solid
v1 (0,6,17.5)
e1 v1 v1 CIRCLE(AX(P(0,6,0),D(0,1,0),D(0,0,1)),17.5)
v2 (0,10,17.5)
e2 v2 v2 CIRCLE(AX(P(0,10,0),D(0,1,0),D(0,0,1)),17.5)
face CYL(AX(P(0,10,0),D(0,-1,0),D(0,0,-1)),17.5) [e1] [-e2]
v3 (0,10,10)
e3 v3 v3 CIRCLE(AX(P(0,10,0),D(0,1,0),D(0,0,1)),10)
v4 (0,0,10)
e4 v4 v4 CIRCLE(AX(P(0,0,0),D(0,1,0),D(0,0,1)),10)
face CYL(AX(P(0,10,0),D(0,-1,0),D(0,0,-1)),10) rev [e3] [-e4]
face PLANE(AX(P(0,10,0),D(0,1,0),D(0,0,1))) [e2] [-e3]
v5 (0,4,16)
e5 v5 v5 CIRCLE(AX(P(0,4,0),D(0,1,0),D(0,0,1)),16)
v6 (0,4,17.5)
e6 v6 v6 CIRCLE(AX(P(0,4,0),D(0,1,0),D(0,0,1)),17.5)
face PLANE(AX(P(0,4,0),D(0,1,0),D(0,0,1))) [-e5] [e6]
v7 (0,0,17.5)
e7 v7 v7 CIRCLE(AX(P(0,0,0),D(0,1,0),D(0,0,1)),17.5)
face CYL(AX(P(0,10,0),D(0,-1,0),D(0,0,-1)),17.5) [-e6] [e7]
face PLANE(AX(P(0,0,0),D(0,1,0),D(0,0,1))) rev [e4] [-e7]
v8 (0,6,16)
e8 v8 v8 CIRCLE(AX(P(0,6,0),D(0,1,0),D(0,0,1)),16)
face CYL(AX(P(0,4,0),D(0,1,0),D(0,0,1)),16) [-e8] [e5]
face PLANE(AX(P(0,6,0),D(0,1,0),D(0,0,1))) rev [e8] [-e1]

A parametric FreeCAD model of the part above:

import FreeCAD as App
import Part
import Sketcher

doc = App.newDocument("Part")
body = doc.addObject("PartDesign::Body", "Body")

# Sketch on XZ plane
sketch1 = body.newObject("Sketcher::SketchObject", "Sketch")
sketch1.AttachmentSupport = (doc.getObject("XZ_Plane"), [""])
sketch1.MapMode = "FlatFace"
sketch1.addGeometry([
    Part.Circle(App.Vector(0, 0, 0), App.Vector(0, 0, 1), 18),
    Part.Circle(App.Vector(0, 0, 0), App.Vector(0, 0, 1), 10),
], False)
sketch1.addConstraint([
    Sketcher.Constraint("Coincident", 0, 3, -1, 1),
    Sketcher.Constraint("Coincident", 1, 3, -1, 1),
    Sketcher.Constraint("Diameter", 0, 35.0),
    Sketcher.Constraint("Diameter", 1, 20.0),
])
pad1 = body.newObject("PartDesign::Pad", "Pad")
pad1.Profile = sketch1
pad1.Length = 10
pad1.Reversed = True

# Sketch on XZ plane
sketch2 = body.newObject("Sketcher::SketchObject", "Sketch001")
sketch2.AttachmentSupport = (doc.getObject("XZ_Plane"), [""])
sketch2.MapMode = "FlatFace"
sketch2.AttachmentOffset = App.Placement(App.Vector(0, 0, -5), App.Rotation())
sketch2.addGeometry([
    Part.Circle(App.Vector(0, 0, 0), App.Vector(0, 0, 1), 18),
    Part.Circle(App.Vector(0, 0, 0), App.Vector(0, 0, 1), 16),
], False)
sketch2.addConstraint([
    Sketcher.Constraint("Coincident", 0, 3, -1, 1),
    Sketcher.Constraint("Coincident", 1, 3, -1, 1),
    Sketcher.Constraint("Diameter", 0, 35.0),
    Sketcher.Constraint("Diameter", 1, 32.0),
])
pocket1 = body.newObject("PartDesign::Pocket", "Pocket")
pocket1.Profile = sketch2
pocket1.Length = 2
pocket1.Midplane = True

doc.recompute()
